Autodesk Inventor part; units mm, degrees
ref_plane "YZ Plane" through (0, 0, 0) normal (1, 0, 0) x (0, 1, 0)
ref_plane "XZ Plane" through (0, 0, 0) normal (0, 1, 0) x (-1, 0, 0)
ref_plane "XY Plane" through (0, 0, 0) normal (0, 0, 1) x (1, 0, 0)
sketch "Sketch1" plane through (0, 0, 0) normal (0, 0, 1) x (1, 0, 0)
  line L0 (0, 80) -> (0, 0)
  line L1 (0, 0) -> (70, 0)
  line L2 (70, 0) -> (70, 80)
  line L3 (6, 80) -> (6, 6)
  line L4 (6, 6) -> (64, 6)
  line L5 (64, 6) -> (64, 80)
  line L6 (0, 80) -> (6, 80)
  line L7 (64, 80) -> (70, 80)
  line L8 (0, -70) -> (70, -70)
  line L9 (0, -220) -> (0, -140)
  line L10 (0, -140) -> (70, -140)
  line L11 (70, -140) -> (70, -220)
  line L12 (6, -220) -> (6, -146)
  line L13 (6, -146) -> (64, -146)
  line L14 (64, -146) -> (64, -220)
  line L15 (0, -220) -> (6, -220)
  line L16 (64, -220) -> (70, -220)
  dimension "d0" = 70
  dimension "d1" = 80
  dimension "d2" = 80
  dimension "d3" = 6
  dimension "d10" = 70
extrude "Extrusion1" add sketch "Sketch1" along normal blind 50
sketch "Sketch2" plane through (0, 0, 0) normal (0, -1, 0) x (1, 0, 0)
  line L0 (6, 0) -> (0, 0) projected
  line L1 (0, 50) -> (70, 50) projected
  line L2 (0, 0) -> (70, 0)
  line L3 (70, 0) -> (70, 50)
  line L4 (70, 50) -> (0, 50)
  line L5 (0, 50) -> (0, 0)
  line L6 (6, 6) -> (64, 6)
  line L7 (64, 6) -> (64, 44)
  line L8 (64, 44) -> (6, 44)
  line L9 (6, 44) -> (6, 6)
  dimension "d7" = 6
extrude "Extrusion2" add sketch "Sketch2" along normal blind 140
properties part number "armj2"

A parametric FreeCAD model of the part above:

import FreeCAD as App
import Part
import Sketcher


def add_polygon(sketch, points):
    """Adds a closed chain of lines whose ends are joined by coincident constraints."""
    first, n = sketch.GeometryCount, len(points)
    for a, b in zip(points, points[1:] + points[:1]):
        sketch.addGeometry(Part.LineSegment(App.Vector(*a, 0), App.Vector(*b, 0)), False)
    for i in range(n):
        sketch.addConstraint(Sketcher.Constraint("Coincident", first + i, 2, first + (i + 1) % n, 1))

doc = App.newDocument("Part")
body = doc.addObject("PartDesign::Body", "Body")
body.AllowCompound = True

sketch1 = body.newObject("Sketcher::SketchObject", "Sketch")
sketch1.AttachmentSupport = (doc.getObject("XY_Plane"), [""])
sketch1.MapMode = "FlatFace"
add_polygon(sketch1, [(6, 80), (0, 80), (0, 0), (70, 0), (70, 80), (64, 80), (64, 6), (6, 6)])
add_polygon(sketch1, [(0, -140), (0, -220), (6, -220), (6, -146), (64, -146), (64, -220), (70, -220), (70, -140)])
sketch1.addConstraint([
    Sketcher.Constraint("Horizontal", 0),
    Sketcher.Constraint("Vertical", 1),
    Sketcher.Constraint("Horizontal", 2),
    Sketcher.Constraint("Vertical", 3),
    Sketcher.Constraint("Horizontal", 4),
    Sketcher.Constraint("Vertical", 5),
    Sketcher.Constraint("Horizontal", 6),
    Sketcher.Constraint("Vertical", 7),
    Sketcher.Constraint("Vertical", 8),
    Sketcher.Constraint("Horizontal", 9),
    Sketcher.Constraint("Vertical", 10),
    Sketcher.Constraint("Horizontal", 11),
    Sketcher.Constraint("Vertical", 12),
    Sketcher.Constraint("Horizontal", 13),
    Sketcher.Constraint("Vertical", 14),
    Sketcher.Constraint("Horizontal", 15),
    Sketcher.Constraint("Coincident", 1, 2, -1, 1),
    Sketcher.Constraint("PointOnObject", 8, 2, -2),
    Sketcher.Constraint("Horizontal", 0, 2, 3, 2),
    Sketcher.Constraint("Horizontal", 9, 2, 12, 2),
    Sketcher.Constraint("Vertical", 7, 2, 9, 2),
    Sketcher.Constraint("Vertical", 5, 2, 11, 2),
    Sketcher.Constraint("Vertical", 3, 2, 13, 2),
    Sketcher.Constraint("Equal", 0, 4),
    Sketcher.Constraint("Equal", 3, 8),
    Sketcher.Constraint("Equal", 7, 10),
    Sketcher.Constraint("DistanceX", 0, 2, 0, 1, 6.0),
    Sketcher.Constraint("DistanceX", 2, 1, 2, 2, 70.0),
    Sketcher.Constraint("DistanceY", 1, 2, 1, 1, 80.0),
    Sketcher.Constraint("DistanceY", -1, 1, 5, 2, 6.0),
    Sketcher.Constraint("DistanceY", 8, 2, -1, 1, 220.0),
])
pad1 = body.newObject("PartDesign::Pad", "Pad")
pad1.Profile = sketch1
pad1.Length = 50

sketch2 = body.newObject("Sketcher::SketchObject", "Sketch001")
sketch2.AttachmentSupport = (doc.getObject("XZ_Plane"), [""])
sketch2.MapMode = "FlatFace"
add_polygon(sketch2, [(0, 0), (70, 0), (70, 50), (0, 50)])
add_polygon(sketch2, [(64, 6), (6, 6), (6, 44), (64, 44)])
sketch2.addConstraint([
    Sketcher.Constraint("Horizontal", 0),
    Sketcher.Constraint("Vertical", 1),
    Sketcher.Constraint("Horizontal", 2),
    Sketcher.Constraint("Vertical", 3),
    Sketcher.Constraint("Horizontal", 4),
    Sketcher.Constraint("Vertical", 5),
    Sketcher.Constraint("Horizontal", 6),
    Sketcher.Constraint("Vertical", 7),
    Sketcher.Constraint("Coincident", 3, 2, -1, 1),
    Sketcher.Constraint("DistanceX", -1, 1, 4, 2, 6.0),
    Sketcher.Constraint("DistanceY", -1, 1, 4, 2, 6.0),
    Sketcher.Constraint("DistanceY", 5, 2, 2, 2, 6.0),
    Sketcher.Constraint("DistanceX", 6, 2, 1, 2, 6.0),
    Sketcher.Constraint("DistanceX", 0, 1, 0, 2, 70.0),
    Sketcher.Constraint("DistanceY", 1, 1, 1, 2, 50.0),
])
pad2 = body.newObject("PartDesign::Pad", "Pad001")
pad2.Profile = sketch2
pad2.Length = 140

doc.recompute()
